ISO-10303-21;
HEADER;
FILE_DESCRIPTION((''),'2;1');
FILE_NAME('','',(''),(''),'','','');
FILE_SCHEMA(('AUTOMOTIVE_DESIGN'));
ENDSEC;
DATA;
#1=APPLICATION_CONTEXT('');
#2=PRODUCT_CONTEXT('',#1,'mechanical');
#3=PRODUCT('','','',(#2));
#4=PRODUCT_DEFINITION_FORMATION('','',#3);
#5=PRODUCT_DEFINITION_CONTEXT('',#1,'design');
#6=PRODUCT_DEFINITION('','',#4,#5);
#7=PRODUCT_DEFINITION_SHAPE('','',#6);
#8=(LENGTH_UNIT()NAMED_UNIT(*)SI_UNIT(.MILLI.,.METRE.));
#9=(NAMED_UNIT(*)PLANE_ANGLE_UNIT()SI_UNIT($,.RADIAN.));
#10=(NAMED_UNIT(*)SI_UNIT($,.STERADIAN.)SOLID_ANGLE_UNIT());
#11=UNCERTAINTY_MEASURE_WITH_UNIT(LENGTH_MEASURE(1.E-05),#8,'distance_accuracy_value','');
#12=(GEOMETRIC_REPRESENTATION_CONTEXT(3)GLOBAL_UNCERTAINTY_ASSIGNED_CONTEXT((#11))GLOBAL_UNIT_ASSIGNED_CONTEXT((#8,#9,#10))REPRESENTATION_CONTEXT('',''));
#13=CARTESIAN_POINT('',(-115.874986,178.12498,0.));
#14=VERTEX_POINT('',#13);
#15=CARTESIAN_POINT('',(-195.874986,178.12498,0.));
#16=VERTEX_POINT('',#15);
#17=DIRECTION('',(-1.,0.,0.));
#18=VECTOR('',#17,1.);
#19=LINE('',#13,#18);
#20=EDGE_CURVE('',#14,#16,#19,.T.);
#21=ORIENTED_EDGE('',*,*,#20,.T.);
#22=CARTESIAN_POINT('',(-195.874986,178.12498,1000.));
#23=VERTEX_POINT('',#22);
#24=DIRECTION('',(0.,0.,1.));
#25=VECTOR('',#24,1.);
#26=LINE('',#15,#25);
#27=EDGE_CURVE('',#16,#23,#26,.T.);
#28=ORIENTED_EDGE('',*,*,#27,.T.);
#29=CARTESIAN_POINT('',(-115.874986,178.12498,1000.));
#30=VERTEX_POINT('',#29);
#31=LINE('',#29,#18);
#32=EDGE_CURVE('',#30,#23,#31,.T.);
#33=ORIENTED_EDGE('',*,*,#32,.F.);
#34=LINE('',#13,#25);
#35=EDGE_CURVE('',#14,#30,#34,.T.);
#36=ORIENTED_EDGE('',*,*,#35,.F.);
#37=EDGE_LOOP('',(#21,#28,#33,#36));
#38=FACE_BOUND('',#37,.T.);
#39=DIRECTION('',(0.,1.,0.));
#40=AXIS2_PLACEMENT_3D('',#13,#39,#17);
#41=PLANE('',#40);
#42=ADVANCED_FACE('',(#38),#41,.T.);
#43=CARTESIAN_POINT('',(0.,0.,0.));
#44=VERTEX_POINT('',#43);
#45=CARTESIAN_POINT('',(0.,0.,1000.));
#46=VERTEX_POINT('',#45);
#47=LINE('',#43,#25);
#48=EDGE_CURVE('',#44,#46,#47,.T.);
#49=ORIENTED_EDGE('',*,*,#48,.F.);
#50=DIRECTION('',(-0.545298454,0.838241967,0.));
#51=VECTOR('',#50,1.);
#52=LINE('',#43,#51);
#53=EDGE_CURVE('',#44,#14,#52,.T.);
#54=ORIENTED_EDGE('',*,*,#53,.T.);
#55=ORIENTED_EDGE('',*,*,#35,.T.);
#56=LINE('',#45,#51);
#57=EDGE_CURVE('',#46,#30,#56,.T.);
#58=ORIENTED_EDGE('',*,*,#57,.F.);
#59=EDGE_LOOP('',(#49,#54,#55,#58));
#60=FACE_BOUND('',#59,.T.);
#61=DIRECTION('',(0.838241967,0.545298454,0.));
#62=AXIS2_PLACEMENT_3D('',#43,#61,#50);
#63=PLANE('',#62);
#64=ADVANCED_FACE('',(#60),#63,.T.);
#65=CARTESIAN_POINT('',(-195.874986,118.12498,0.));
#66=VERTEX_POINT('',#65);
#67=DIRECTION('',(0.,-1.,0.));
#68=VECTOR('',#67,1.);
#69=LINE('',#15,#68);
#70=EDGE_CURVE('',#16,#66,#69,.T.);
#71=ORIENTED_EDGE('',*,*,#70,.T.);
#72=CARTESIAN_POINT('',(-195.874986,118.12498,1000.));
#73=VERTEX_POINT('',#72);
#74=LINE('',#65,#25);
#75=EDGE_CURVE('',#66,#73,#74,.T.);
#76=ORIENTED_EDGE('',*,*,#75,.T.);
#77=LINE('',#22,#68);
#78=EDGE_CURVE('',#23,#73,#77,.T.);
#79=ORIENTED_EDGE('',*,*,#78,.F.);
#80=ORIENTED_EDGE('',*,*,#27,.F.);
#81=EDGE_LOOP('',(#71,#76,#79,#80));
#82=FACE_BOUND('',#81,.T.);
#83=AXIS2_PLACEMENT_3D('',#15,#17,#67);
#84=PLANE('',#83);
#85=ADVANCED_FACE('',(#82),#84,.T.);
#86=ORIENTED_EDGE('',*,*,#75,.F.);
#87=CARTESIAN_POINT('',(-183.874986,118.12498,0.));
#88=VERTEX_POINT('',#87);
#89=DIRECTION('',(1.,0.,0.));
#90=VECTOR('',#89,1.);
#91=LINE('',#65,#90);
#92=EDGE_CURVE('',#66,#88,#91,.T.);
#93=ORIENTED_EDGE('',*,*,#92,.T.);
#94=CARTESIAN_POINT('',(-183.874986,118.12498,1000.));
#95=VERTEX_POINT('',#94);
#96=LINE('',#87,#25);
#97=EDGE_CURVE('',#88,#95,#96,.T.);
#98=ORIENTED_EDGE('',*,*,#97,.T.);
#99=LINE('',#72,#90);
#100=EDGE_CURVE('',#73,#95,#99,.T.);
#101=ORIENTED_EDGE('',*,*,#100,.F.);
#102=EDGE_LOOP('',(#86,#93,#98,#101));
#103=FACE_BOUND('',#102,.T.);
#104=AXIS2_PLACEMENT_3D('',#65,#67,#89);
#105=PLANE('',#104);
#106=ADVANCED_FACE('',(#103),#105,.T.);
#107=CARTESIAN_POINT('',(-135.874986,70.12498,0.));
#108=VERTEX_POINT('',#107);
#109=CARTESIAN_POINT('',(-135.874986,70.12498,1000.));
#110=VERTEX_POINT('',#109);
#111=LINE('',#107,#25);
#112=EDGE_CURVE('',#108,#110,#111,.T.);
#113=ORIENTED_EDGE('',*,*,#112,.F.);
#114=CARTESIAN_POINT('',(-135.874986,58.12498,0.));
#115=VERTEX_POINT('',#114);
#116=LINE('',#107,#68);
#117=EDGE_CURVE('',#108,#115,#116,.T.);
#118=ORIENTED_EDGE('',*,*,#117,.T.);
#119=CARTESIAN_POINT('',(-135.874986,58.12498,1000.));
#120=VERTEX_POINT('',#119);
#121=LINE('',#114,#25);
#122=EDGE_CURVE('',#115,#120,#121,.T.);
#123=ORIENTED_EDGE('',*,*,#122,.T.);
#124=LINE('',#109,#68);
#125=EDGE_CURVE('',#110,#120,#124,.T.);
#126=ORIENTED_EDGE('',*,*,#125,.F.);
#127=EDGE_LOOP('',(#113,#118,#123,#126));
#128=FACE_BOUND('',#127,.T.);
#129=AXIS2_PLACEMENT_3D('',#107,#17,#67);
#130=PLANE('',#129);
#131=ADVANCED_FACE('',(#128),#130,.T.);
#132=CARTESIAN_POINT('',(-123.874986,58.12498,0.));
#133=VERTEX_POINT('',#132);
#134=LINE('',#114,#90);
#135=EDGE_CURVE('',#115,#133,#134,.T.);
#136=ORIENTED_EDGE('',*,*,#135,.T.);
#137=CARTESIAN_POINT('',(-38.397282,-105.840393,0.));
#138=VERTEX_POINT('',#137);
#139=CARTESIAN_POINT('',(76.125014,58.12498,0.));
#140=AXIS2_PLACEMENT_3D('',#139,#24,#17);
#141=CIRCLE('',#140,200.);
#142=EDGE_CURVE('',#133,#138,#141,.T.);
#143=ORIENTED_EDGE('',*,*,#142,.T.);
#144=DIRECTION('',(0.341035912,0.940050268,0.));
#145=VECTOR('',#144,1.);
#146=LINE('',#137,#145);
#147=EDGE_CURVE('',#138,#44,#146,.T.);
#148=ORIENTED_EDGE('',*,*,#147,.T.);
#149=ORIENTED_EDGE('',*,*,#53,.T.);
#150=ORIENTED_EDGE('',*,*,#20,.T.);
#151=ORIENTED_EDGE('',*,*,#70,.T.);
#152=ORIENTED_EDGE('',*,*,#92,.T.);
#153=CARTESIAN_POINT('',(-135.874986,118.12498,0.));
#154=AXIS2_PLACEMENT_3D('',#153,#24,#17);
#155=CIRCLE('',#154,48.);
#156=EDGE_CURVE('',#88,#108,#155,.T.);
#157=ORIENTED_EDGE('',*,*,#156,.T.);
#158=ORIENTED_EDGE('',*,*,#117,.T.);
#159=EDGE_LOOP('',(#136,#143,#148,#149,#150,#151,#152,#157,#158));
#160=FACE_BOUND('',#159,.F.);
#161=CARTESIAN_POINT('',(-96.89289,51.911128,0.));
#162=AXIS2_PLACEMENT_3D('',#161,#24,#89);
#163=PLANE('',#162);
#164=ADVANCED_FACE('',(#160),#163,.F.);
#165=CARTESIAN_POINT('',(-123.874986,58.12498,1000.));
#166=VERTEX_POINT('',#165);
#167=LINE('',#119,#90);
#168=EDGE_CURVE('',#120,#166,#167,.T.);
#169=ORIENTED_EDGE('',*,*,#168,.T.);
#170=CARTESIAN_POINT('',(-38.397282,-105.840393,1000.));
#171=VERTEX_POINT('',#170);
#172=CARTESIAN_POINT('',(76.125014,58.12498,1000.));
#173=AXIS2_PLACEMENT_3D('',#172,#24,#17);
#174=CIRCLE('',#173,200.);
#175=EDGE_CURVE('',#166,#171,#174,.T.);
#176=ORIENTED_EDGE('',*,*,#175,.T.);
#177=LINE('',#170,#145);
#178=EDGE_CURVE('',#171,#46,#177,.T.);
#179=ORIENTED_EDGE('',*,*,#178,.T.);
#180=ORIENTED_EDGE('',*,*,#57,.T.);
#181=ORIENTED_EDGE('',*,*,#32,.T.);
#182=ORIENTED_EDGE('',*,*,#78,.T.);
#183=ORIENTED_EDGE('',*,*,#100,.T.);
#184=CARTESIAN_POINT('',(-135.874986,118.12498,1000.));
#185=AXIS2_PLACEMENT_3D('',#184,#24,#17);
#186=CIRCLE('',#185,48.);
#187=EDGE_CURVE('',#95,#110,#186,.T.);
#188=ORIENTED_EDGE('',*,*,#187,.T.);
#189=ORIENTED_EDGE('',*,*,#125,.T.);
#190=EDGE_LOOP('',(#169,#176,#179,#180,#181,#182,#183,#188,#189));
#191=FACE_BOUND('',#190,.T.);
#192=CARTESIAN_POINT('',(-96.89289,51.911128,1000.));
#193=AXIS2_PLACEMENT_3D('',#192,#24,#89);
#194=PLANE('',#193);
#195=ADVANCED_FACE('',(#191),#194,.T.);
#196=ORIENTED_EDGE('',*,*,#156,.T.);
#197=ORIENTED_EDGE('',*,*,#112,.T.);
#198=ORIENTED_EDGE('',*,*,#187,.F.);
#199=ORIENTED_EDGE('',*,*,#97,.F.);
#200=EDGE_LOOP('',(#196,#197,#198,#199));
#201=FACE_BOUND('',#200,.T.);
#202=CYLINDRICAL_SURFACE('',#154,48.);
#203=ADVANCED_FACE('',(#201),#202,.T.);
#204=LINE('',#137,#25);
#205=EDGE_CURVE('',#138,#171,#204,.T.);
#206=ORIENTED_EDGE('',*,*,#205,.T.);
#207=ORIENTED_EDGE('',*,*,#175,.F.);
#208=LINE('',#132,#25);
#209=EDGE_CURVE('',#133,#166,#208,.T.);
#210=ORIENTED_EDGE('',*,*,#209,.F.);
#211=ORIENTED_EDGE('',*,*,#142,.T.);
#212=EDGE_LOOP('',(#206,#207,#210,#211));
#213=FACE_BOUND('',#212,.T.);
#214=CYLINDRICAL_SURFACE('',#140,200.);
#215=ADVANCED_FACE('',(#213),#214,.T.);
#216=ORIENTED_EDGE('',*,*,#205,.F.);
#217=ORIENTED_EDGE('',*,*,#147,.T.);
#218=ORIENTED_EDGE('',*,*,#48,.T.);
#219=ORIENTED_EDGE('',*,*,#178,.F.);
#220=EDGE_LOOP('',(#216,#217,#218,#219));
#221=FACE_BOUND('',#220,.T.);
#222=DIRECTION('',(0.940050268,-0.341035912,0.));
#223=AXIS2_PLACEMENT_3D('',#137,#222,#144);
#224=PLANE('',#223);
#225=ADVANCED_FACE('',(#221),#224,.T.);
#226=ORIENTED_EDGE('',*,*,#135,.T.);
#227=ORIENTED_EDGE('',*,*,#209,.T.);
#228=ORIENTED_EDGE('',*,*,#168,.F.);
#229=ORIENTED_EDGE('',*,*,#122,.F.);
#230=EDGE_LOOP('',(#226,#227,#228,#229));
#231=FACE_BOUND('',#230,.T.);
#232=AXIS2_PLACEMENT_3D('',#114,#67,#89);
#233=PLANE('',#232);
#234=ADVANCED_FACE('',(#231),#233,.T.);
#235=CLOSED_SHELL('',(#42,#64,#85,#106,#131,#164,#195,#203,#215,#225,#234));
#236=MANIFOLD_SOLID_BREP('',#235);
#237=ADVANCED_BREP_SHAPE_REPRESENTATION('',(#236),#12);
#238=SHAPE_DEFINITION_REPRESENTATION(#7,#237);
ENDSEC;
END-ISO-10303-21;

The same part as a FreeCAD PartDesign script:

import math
import FreeCAD as App
import Part
import Sketcher

V = App.Vector
Q = App.Units.Quantity

doc = App.newDocument("Part")
params = doc.addObject("Spreadsheet::Sheet", "Params")
for row, (alias, value) in enumerate([
    ("sketch1_radius", "48 mm"),
    ("sketch1_radius2", "200 mm"),
    ("sketch1_width", "80 mm"),
    ("sketch1_width2", "12 mm"),
    ("sketch1_height", "60 mm"),
    ("sketch2_height", "1000 mm"),
], start=1):
    params.set(f"A{row}", alias)
    params.set(f"B{row}", "=" + value)
    params.setAlias(f"B{row}", alias)

body = doc.addObject("PartDesign::Body", "Body")

# Sketch on XY plane
sketch1 = body.newObject("Sketcher::SketchObject", "Sketch")
sketch1.AttachmentSupport = (doc.getObject("XY_Plane"), [""])
sketch1.MapMode = "FlatFace"
sketch1.addGeometry(Part.LineSegment(V(-38, -106, 0), V(0, 0, 0)), False)
sketch1.addGeometry(Part.LineSegment(V(0, 0, 0), V(-116, 178, 0)), False)
sketch1.addGeometry(Part.LineSegment(V(-116, 178, 0), V(-196, 178, 0)), False)
sketch1.addGeometry(Part.LineSegment(V(-196, 178, 0), V(-196, 118, 0)), False)
sketch1.addGeometry(Part.LineSegment(V(-196, 118, 0), V(-184, 118, 0)), False)
sketch1.addGeometry(Part.ArcOfCircle(Part.Circle(V(-136, 118, 0), V(0, 0, 1), 48), math.radians(180), math.radians(270)), False)
sketch1.addGeometry(Part.LineSegment(V(-136, 70, 0), V(-136, 58, 0)), False)
sketch1.addGeometry(Part.LineSegment(V(-136, 58, 0), V(-124, 58, 0)), False)
sketch1.addGeometry(Part.ArcOfCircle(Part.Circle(V(76, 58, 0), V(0, 0, 1), 200), math.radians(180), math.radians(235)), False)
sketch1.addConstraint(Sketcher.Constraint("Coincident", 0, 2, 1, 1))
sketch1.addConstraint(Sketcher.Constraint("Coincident", 1, 2, 2, 1))
sketch1.addConstraint(Sketcher.Constraint("Coincident", 2, 2, 3, 1))
sketch1.addConstraint(Sketcher.Constraint("Coincident", 3, 2, 4, 1))
sketch1.addConstraint(Sketcher.Constraint("Coincident", 4, 2, 5, 1))
sketch1.addConstraint(Sketcher.Constraint("Coincident", 5, 2, 6, 1))
sketch1.addConstraint(Sketcher.Constraint("Coincident", 6, 2, 7, 1))
sketch1.addConstraint(Sketcher.Constraint("Coincident", 7, 2, 8, 1))
sketch1.addConstraint(Sketcher.Constraint("Coincident", 8, 2, 0, 1))
sketch1.addConstraint(Sketcher.Constraint("Horizontal", 2))
sketch1.addConstraint(Sketcher.Constraint("Vertical", 3))
sketch1.addConstraint(Sketcher.Constraint("Horizontal", 4))
sketch1.addConstraint(Sketcher.Constraint("Vertical", 6))
sketch1.addConstraint(Sketcher.Constraint("Horizontal", 7))
sketch1.addConstraint(Sketcher.Constraint("Coincident", 0, 2, -1, 1))
sketch1.addConstraint(Sketcher.Constraint("Horizontal", 5, 3, 3, 2))
sketch1.addConstraint(Sketcher.Constraint("Horizontal", 8, 3, 6, 2))
sketch1.addConstraint(Sketcher.Constraint("Equal", 4, 7))
sketch1.addConstraint(Sketcher.Constraint("Equal", 7, 6))
sketch1.addConstraint(Sketcher.Constraint("Radius", 5, Q("48 mm")))
sketch1.addConstraint(Sketcher.Constraint("Radius", 8, Q("200 mm")))
sketch1.addConstraint(Sketcher.Constraint("DistanceX", 2, 2, 2, 1, Q("80 mm")))
sketch1.addConstraint(Sketcher.Constraint("DistanceX", 4, 1, 4, 2, Q("12 mm")))
sketch1.addConstraint(Sketcher.Constraint("DistanceY", 3, 2, 3, 1, Q("60 mm")))
sketch1.addConstraint(Sketcher.Constraint("DistanceX", 5, 3, 8, 3, Q("212 mm")))
sketch1.addConstraint(Sketcher.Constraint("Angle", 0, Q("70.06 deg")))
sketch1.addConstraint(Sketcher.Constraint("DistanceY", -1, 1, 5, 3, Q("118.12498 mm")))
sketch1.addConstraint(Sketcher.Constraint("Distance", 0, Q("112.590142 mm")))
sketch1.setExpression("Constraints[19]", "Params.sketch1_radius")
sketch1.setExpression("Constraints[20]", "Params.sketch1_radius2")
sketch1.setExpression("Constraints[21]", "Params.sketch1_width")
sketch1.setExpression("Constraints[22]", "Params.sketch1_width2")
sketch1.setExpression("Constraints[23]", "Params.sketch1_height")

# Sketch on XZ plane
sketch2 = body.newObject("Sketcher::SketchObject", "Sketch001")
sketch2.AttachmentSupport = (doc.getObject("XZ_Plane"), [""])
sketch2.MapMode = "FlatFace"
sketch2.AttachmentOffset = App.Placement(V(0, 0, 105.840393), App.Rotation())
sketch2.addGeometry(Part.LineSegment(V(-38, 0, 0), V(-38, 1000, 0)), False)
sketch2.addConstraint(Sketcher.Constraint("Vertical", 0))
sketch2.addConstraint(Sketcher.Constraint("PointOnObject", 0, 1, -1))
sketch2.addConstraint(Sketcher.Constraint("DistanceY", 0, 1, 0, 2, Q("1000 mm")))
sketch2.addConstraint(Sketcher.Constraint("DistanceX", 0, 1, -1, 1, Q("38.397282 mm")))
sketch2.setExpression("Constraints[2]", "Params.sketch2_height")
doc.recompute()

additivepipe = body.newObject("PartDesign::AdditivePipe", "AdditivePipe")
additivepipe.Profile = sketch1
additivepipe.Spine = (sketch2, ["Edge1"])

doc.recompute()
